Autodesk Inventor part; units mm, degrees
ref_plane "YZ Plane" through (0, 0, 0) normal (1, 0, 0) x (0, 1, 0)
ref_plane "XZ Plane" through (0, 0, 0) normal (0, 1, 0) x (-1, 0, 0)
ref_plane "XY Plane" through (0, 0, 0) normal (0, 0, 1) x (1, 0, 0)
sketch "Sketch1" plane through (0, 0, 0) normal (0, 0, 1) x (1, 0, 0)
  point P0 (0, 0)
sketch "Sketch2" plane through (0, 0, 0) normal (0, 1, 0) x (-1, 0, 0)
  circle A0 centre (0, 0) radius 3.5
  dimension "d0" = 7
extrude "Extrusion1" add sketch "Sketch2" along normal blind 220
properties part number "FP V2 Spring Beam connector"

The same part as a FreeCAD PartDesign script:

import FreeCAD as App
import Part
import Sketcher

V = App.Vector
Q = App.Units.Quantity

doc = App.newDocument("Part")
body = doc.addObject("PartDesign::Body", "Body")

sketch1 = body.newObject("Sketcher::SketchObject", "Sketch")
sketch1.AttachmentSupport = (doc.getObject("XZ_Plane"), [""])
sketch1.MapMode = "FlatFace"
sketch1.addGeometry(Part.Circle(V(0, 0, 0), V(0, 0, 1), 3.5), False)
sketch1.addConstraint(Sketcher.Constraint("Coincident", 0, 3, -1, 1))
sketch1.addConstraint(Sketcher.Constraint("Diameter", 0, Q("7 mm")))
pad1 = body.newObject("PartDesign::Pad", "Pad")
pad1.Profile = sketch1
pad1.Length = 220
pad1.Reversed = True

doc.recompute()
